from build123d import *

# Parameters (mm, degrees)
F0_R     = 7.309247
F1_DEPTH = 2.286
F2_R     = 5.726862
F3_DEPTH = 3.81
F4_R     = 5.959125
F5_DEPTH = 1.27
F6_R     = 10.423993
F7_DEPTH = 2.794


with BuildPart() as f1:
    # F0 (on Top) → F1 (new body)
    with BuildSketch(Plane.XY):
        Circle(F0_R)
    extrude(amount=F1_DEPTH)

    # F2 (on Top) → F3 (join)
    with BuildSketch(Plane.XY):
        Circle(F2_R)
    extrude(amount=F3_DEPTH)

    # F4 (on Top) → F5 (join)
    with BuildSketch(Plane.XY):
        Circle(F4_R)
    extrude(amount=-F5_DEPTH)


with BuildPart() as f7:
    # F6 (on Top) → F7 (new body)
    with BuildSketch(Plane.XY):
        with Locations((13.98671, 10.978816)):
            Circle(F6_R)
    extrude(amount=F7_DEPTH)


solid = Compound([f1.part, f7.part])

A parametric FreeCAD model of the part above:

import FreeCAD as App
import Part
import Sketcher

doc = App.newDocument("Part")
params = doc.addObject("Spreadsheet::Sheet", "Params")
for row, (alias, value) in enumerate([
    ("pad1_length", "0.09 in"),
    ("pad2_length", "0.15 in"),
    ("pad3_length", "0.05 in"),
    ("pad4_length", "0.11 in"),
], start=1):
    params.set(f"A{row}", alias)
    params.set(f"B{row}", "=" + value)
    params.setAlias(f"B{row}", alias)

body = doc.addObject("PartDesign::Body", "Body")

# Sketch on XY plane
sketch1 = doc.addObject("Sketcher::SketchObject", "Sketch")
body.addObject(sketch1)
sketch1.AttachmentSupport = (doc.XY_Plane, [""])
sketch1.MapMode = "FlatFace"
sketch1.addGeometry(Part.Circle(App.Vector(0, 0, 0), App.Vector(0, 0, 1), 7.309247), False)
sketch1.addConstraint(Sketcher.Constraint("Coincident", 0, 3, -1, 1))
sketch1.addConstraint(Sketcher.Constraint("Diameter", 0, 14.618494))
pad1 = doc.addObject("PartDesign::Pad", "Pad")
body.addObject(pad1)
pad1.Profile = sketch1
pad1.setExpression("Length", "Params.pad1_length")

# Sketch on XY plane
sketch2 = doc.addObject("Sketcher::SketchObject", "Sketch001")
body.addObject(sketch2)
sketch2.AttachmentSupport = (doc.XY_Plane, [""])
sketch2.MapMode = "FlatFace"
sketch2.addGeometry(Part.Circle(App.Vector(0, 0, 0), App.Vector(0, 0, 1), 5.726862), False)
sketch2.addConstraint(Sketcher.Constraint("Coincident", 0, 3, -1, 1))
sketch2.addConstraint(Sketcher.Constraint("Diameter", 0, 11.453724))
pad2 = doc.addObject("PartDesign::Pad", "Pad001")
body.addObject(pad2)
pad2.Profile = sketch2
pad2.setExpression("Length", "Params.pad2_length")

# Sketch on XY plane
sketch3 = doc.addObject("Sketcher::SketchObject", "Sketch002")
body.addObject(sketch3)
sketch3.AttachmentSupport = (doc.XY_Plane, [""])
sketch3.MapMode = "FlatFace"
sketch3.addGeometry(Part.Circle(App.Vector(0, 0, 0), App.Vector(0, 0, 1), 5.959125), False)
sketch3.addConstraint(Sketcher.Constraint("Coincident", 0, 3, -1, 1))
sketch3.addConstraint(Sketcher.Constraint("Diameter", 0, 11.91825))
pad3 = doc.addObject("PartDesign::Pad", "Pad002")
body.addObject(pad3)
pad3.Profile = sketch3
pad3.setExpression("Length", "Params.pad3_length")
pad3.Reversed = True
body2 = doc.addObject("PartDesign::Body", "Body001")

# Sketch on XY plane
sketch4 = doc.addObject("Sketcher::SketchObject", "Sketch003")
body2.addObject(sketch4)
sketch4.AttachmentSupport = (doc.getObject("XY_Plane001"), [""])
sketch4.MapMode = "FlatFace"
sketch4.addGeometry(Part.Circle(App.Vector(13.98671, 10.978816, 0), App.Vector(0, 0, 1), 10.423993), False)
sketch4.addConstraint(Sketcher.Constraint("Diameter", 0, 20.847986))
sketch4.addConstraint(Sketcher.Constraint("DistanceX", -1, 1, 0, 3, 13.98671))
sketch4.addConstraint(Sketcher.Constraint("DistanceY", -1, 1, 0, 3, 10.978816))
pad4 = doc.addObject("PartDesign::Pad", "Pad003")
body2.addObject(pad4)
pad4.Profile = sketch4
pad4.setExpression("Length", "Params.pad4_length")

doc.recompute()
